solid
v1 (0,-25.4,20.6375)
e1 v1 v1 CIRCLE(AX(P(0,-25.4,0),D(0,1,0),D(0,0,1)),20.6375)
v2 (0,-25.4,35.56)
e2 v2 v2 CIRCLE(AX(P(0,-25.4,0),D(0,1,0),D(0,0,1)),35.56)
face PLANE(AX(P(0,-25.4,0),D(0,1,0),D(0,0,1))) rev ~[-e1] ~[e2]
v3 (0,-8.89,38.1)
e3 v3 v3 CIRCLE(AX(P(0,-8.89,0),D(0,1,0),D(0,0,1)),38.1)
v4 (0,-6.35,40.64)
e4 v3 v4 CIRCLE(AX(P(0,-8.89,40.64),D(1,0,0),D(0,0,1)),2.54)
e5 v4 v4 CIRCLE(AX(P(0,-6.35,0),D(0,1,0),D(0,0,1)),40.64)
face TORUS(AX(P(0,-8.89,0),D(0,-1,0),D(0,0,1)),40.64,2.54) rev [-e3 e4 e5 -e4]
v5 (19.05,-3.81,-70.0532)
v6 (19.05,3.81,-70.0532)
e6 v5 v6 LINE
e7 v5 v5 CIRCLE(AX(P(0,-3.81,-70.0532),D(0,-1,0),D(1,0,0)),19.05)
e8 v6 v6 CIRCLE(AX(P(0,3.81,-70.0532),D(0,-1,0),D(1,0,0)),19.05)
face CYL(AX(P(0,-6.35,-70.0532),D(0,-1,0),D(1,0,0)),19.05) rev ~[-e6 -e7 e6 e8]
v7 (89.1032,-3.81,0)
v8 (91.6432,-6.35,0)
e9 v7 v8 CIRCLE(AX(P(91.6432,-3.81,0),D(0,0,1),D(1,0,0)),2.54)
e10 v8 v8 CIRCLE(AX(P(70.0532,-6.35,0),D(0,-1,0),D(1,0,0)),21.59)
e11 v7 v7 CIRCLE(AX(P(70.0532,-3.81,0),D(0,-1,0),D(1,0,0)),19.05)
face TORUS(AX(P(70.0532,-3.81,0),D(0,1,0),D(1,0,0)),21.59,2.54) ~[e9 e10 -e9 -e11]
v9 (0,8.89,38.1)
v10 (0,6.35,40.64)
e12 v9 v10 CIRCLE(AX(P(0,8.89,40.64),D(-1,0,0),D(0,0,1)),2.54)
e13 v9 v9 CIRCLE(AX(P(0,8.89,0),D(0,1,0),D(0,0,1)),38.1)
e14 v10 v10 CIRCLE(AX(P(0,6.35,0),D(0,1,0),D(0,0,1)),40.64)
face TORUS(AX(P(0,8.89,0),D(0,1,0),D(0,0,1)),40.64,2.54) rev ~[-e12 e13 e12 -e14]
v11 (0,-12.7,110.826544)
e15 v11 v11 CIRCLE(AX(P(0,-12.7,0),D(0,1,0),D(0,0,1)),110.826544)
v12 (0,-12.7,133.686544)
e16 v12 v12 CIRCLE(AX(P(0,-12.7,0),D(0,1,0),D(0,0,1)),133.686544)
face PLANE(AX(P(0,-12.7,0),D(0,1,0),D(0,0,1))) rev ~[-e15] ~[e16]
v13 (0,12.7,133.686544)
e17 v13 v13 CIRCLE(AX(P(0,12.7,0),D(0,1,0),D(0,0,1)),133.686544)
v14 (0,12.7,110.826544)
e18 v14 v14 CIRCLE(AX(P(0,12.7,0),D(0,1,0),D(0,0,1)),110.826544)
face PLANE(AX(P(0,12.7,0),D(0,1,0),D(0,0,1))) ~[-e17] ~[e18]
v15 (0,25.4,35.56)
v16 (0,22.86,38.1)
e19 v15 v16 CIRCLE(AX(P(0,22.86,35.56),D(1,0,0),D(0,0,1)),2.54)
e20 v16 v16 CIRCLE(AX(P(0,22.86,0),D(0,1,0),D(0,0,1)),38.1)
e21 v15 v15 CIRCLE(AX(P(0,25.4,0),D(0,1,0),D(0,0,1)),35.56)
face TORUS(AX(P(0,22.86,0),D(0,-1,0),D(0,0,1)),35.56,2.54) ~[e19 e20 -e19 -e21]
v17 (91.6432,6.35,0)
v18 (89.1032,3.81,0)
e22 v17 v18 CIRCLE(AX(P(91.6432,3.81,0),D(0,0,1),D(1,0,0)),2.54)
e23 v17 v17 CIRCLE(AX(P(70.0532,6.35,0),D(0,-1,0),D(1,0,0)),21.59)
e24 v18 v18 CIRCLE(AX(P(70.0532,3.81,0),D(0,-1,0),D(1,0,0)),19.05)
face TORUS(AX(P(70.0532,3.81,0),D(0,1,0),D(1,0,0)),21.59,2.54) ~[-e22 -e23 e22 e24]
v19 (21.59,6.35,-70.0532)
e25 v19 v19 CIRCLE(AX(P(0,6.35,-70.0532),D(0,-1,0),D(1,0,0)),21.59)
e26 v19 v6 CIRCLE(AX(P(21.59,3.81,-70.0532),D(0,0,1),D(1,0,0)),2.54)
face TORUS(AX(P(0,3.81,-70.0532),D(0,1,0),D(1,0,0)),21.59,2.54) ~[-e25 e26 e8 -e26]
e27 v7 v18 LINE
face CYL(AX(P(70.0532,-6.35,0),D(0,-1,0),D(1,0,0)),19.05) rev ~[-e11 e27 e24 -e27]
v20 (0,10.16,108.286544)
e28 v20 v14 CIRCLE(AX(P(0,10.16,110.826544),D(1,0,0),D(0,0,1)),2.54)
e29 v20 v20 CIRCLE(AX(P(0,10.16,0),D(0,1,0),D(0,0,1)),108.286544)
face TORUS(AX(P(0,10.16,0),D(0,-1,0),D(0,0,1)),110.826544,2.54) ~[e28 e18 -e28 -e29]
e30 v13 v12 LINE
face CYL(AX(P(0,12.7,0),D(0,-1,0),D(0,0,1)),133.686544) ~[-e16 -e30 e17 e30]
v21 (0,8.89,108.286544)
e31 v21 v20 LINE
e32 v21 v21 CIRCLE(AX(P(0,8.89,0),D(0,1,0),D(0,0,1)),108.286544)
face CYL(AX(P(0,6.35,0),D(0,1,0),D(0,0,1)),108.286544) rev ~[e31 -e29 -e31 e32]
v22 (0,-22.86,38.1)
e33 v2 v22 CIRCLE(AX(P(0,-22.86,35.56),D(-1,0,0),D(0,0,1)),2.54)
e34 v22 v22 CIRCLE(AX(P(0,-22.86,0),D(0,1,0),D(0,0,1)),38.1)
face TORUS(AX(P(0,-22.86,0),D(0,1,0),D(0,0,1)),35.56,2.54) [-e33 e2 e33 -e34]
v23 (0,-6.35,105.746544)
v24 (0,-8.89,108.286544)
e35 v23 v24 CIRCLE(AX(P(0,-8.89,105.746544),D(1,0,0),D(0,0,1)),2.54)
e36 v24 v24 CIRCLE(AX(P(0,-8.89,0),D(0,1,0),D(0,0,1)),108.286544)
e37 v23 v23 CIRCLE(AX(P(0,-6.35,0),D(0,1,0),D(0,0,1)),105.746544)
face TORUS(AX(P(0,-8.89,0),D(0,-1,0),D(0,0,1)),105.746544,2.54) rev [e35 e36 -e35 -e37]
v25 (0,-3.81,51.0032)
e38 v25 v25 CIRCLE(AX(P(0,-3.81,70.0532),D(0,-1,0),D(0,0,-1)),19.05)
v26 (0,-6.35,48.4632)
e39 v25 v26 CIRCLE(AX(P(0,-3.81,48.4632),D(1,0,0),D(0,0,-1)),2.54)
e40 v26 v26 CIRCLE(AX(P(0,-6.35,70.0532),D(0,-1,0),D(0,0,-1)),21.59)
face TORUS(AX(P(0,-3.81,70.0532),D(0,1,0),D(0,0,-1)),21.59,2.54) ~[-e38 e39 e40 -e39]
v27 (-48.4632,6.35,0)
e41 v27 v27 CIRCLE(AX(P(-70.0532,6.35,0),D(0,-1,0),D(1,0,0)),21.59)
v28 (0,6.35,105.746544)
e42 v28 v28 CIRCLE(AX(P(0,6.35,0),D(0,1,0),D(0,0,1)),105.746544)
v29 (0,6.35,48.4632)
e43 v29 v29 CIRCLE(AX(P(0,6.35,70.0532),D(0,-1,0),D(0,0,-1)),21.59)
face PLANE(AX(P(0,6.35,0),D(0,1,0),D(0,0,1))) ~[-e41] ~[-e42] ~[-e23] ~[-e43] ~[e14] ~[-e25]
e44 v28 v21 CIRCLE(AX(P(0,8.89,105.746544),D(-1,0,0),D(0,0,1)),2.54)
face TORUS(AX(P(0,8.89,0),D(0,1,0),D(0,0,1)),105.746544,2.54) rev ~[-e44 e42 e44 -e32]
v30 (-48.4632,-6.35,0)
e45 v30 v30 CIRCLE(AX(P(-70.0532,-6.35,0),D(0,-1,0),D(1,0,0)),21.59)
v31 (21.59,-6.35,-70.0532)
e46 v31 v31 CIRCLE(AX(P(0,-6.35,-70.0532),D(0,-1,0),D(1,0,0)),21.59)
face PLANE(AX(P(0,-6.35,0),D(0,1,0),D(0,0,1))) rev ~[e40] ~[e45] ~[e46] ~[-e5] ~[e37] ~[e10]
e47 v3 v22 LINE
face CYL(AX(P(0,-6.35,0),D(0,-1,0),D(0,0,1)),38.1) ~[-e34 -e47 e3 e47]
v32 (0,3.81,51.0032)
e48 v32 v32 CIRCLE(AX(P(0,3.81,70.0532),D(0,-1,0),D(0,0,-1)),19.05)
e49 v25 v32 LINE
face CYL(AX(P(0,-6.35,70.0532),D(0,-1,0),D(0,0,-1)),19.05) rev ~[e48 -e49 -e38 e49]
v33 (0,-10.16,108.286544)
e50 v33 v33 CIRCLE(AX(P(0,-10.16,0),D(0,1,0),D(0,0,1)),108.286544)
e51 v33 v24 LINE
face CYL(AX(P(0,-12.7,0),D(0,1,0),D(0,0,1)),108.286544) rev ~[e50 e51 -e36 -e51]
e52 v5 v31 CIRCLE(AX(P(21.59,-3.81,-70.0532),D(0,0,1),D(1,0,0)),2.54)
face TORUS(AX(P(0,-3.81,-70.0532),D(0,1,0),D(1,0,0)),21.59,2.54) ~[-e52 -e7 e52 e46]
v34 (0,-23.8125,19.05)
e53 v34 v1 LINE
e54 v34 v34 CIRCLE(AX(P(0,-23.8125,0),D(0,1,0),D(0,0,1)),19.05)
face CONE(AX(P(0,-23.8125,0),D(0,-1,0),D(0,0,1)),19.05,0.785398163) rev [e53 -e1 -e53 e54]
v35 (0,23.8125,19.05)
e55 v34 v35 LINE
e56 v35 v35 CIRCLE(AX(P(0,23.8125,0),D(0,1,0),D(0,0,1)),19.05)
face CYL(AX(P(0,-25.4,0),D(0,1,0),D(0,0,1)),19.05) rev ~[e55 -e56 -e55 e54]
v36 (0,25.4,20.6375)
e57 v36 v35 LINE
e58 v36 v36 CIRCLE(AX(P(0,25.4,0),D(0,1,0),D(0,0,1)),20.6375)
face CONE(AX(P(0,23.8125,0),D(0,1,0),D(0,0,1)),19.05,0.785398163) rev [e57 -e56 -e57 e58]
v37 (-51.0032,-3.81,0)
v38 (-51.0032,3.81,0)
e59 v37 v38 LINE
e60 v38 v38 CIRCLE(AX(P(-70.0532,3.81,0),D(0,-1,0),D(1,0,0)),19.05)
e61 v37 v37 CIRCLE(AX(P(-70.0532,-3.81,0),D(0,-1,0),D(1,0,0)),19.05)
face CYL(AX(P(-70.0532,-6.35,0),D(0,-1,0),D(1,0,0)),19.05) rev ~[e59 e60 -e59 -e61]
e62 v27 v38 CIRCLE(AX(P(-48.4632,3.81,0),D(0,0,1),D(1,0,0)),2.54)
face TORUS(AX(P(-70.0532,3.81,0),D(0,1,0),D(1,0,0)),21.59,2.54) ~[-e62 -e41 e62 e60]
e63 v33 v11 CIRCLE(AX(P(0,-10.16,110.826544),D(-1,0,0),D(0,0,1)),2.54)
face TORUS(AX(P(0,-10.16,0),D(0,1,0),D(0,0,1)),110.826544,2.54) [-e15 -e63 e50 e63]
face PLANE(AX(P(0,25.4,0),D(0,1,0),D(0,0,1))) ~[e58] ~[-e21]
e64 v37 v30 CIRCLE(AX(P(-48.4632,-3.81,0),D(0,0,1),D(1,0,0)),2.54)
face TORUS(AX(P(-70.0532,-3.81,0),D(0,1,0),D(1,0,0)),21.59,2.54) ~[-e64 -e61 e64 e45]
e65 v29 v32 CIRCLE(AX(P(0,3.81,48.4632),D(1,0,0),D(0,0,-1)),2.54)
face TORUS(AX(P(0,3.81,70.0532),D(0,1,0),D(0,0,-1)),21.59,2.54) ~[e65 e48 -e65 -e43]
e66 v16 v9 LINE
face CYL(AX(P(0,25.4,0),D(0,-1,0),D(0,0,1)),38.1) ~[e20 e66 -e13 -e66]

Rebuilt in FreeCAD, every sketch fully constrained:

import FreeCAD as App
import Part
import Sketcher
Q = App.Units.Quantity


def edges_at(feature, points):
    """Names of the edges that pass closest to the given points."""
    edges = feature.Shape.Edges
    near = lambda p: min(range(len(edges)), key=lambda i: edges[i].distToShape(Part.Vertex(*p))[0])
    return sorted({f"Edge{near(p) + 1}" for p in points})

doc = App.newDocument("Part")
body = doc.addObject("PartDesign::Body", "Body")

sketch1 = body.newObject("Sketcher::SketchObject", "Sketch")
sketch1.AttachmentSupport = (doc.getObject("YZ_Plane"), [""])
sketch1.MapMode = "FlatFace"
sketch1.addGeometry([
    Part.LineSegment(App.Vector(25, 19, 0), App.Vector(25, 38, 0)),
    Part.LineSegment(App.Vector(25, 38, 0), App.Vector(6, 38, 0)),
    Part.LineSegment(App.Vector(6, 38, 0), App.Vector(6, 108, 0)),
    Part.LineSegment(App.Vector(6, 108, 0), App.Vector(13, 108, 0)),
    Part.LineSegment(App.Vector(13, 108, 0), App.Vector(13, 134, 0)),
    Part.LineSegment(App.Vector(13, 134, 0), App.Vector(-13, 134, 0)),
    Part.LineSegment(App.Vector(-13, 134, 0), App.Vector(-13, 108, 0)),
    Part.LineSegment(App.Vector(-13, 108, 0), App.Vector(-6, 108, 0)),
    Part.LineSegment(App.Vector(-6, 108, 0), App.Vector(-6, 38, 0)),
    Part.LineSegment(App.Vector(-6, 38, 0), App.Vector(-25, 38, 0)),
    Part.LineSegment(App.Vector(-25, 38, 0), App.Vector(-25, 19, 0)),
    Part.LineSegment(App.Vector(-25, 19, 0), App.Vector(25, 19, 0)),
], False)
sketch1.addConstraint([
    Sketcher.Constraint("Coincident", 0, 2, 1, 1),
    Sketcher.Constraint("Coincident", 1, 2, 2, 1),
    Sketcher.Constraint("Coincident", 2, 2, 3, 1),
    Sketcher.Constraint("Coincident", 3, 2, 4, 1),
    Sketcher.Constraint("Coincident", 4, 2, 5, 1),
    Sketcher.Constraint("Coincident", 5, 2, 6, 1),
    Sketcher.Constraint("Coincident", 6, 2, 7, 1),
    Sketcher.Constraint("Coincident", 7, 2, 8, 1),
    Sketcher.Constraint("Coincident", 8, 2, 9, 1),
    Sketcher.Constraint("Coincident", 9, 2, 10, 1),
    Sketcher.Constraint("Coincident", 10, 2, 11, 1),
    Sketcher.Constraint("Coincident", 11, 2, 0, 1),
    Sketcher.Constraint("Vertical", 0),
    Sketcher.Constraint("Horizontal", 1),
    Sketcher.Constraint("Vertical", 2),
    Sketcher.Constraint("Horizontal", 3),
    Sketcher.Constraint("Vertical", 4),
    Sketcher.Constraint("Horizontal", 5),
    Sketcher.Constraint("Vertical", 6),
    Sketcher.Constraint("Horizontal", 7),
    Sketcher.Constraint("Vertical", 8),
    Sketcher.Constraint("Horizontal", 9),
    Sketcher.Constraint("Vertical", 10),
    Sketcher.Constraint("Horizontal", 11),
    Sketcher.Constraint("Symmetric", 3, 2, 6, 2, -2),
    Sketcher.Constraint("Symmetric", 1, 2, 8, 2, -2),
    Sketcher.Constraint("Equal", 1, 9),
    Sketcher.Constraint("Equal", 9, 0),
    Sketcher.Constraint("Equal", 5, 4),
    Sketcher.Constraint("DistanceX", 5, 2, 5, 1, Q("1 in")),
    Sketcher.Constraint("DistanceX", 11, 1, 11, 2, Q("2 in")),
    Sketcher.Constraint("DistanceX", 1, 2, 1, 1, Q("0.75 in")),
    Sketcher.Constraint("DistanceY", -1, 1, 0, 2, Q("1.5 in")),
    Sketcher.Constraint("DistanceY", 2, 1, 2, 2, 70.186544),
])
revolution = body.newObject("PartDesign::Revolution", "Revolution")
revolution.Profile = sketch1
revolution.ReferenceAxis = (sketch1, ["H_Axis"])
revolution.Angle = 360

sketch2 = body.newObject("Sketcher::SketchObject", "Sketch001")
sketch2.AttachmentSupport = (doc.getObject("XZ_Plane"), [""])
sketch2.MapMode = "FlatFace"
sketch2.AttachmentOffset = App.Placement(App.Vector(0, 0, 0.25 * 25.4), App.Rotation())
sketch2.addGeometry([
    Part.Circle(App.Vector(70, 0, 0), App.Vector(0, 0, 1), 19),
    Part.Circle(App.Vector(0, -70, 0), App.Vector(0, 0, 1), 19),
    Part.Circle(App.Vector(-70, 0, 0), App.Vector(0, 0, 1), 19),
    Part.Circle(App.Vector(0, 70, 0), App.Vector(0, 0, 1), 19),
], False)
sketch2.addConstraint([
    Sketcher.Constraint("Equal", 0, 1),
    Sketcher.Constraint("Equal", 1, 2),
    Sketcher.Constraint("Equal", 2, 3),
    Sketcher.Constraint("Symmetric", 0, 3, 2, 3, -1, 1),
    Sketcher.Constraint("Symmetric", 1, 3, 3, 3, -1, 1),
    Sketcher.Constraint("PointOnObject", 0, 3, -1),
    Sketcher.Constraint("PointOnObject", 1, 3, -2),
    Sketcher.Constraint("Diameter", 0, Q("1.5 in")),
    Sketcher.Constraint("DistanceX", -1, 1, 0, 3, Q("2.758 in")),
    Sketcher.Constraint("DistanceY", 1, 3, -1, 1, Q("2.758 in")),
])
pocket1 = body.newObject("PartDesign::Pocket", "Pocket")
pocket1.Profile = sketch2
pocket1.Length = Q("1 in")
doc.recompute()

fillet = body.newObject("PartDesign::Fillet", "Fillet")
fillet.Base = (pocket1, edges_at(pocket1, [
    (0, 25.4, -38.1),
    (0, 6.35, -38.1),
    (0, 12.7, -108.287),
    (0, 6.35, -108.287),
    (-89.103, 6.35, 0),
    (0, 6.35, 89.103),
    (-19.05, 6.35, -70.053),
    (51.003, 6.35, 0),
    (0, -25.4, -38.1),
    (0, -6.35, -38.1),
    (0, -12.7, -108.287),
    (0, -6.35, -108.287),
    (-89.103, -6.35, 0),
    (-19.05, -6.35, -70.053),
    (0, -6.35, 89.103),
    (51.003, -6.35, 0),
]))
fillet.Radius = Q("0.1 in")
doc.recompute()

chamfer = body.newObject("PartDesign::Chamfer", "Chamfer")
chamfer.Base = (fillet, edges_at(fillet, [(0, -25.4, -19.05), (0, 25.4, -19.05)]))
chamfer.Size = Q("0.0625 in")

doc.recompute()
